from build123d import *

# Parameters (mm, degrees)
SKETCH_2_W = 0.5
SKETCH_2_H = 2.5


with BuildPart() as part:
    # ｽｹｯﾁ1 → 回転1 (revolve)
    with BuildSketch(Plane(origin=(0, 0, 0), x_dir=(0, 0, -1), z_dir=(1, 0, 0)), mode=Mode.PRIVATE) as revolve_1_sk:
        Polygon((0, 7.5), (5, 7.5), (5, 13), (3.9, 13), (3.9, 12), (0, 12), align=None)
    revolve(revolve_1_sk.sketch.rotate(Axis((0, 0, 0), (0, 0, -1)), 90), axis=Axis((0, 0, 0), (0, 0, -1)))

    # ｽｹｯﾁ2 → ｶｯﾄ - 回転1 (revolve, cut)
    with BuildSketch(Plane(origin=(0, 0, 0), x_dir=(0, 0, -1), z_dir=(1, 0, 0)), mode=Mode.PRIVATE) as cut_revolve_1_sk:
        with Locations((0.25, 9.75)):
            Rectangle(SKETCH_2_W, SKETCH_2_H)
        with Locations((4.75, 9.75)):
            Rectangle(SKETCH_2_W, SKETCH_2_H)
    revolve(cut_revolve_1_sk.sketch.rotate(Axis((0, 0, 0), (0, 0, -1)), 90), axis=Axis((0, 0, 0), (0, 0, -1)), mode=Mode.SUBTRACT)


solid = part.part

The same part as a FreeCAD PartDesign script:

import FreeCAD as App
import Part
import Sketcher
Q = App.Units.Quantity

doc = App.newDocument("Part")
params = doc.addObject("Spreadsheet::Sheet", "Params")
for row, (alias, value) in enumerate([
    ("sketch1_width", "1 mm"),
    ("sketch1_height", "5 mm"),
    ("sketch1_width2", "5.5 mm"),
    ("sketch1_height2", "1.1 mm"),
    ("revolution_angle", "360 deg"),
    ("sketch2_width", "2.5 mm"),
    ("sketch2_height", "0.5 mm"),
    ("groove_angle", "360 deg"),
], start=1):
    params.set(f"A{row}", alias)
    params.set(f"B{row}", "=" + value)
    params.setAlias(f"B{row}", alias)

body = doc.addObject("PartDesign::Body", "Body")

sketch1 = body.newObject("Sketcher::SketchObject", "Sketch")
sketch1.AttachmentSupport = (doc.getObject("YZ_Plane"), [""])
sketch1.MapMode = "FlatFace"
sketch1.addGeometry([
    Part.LineSegment(App.Vector(7.5, 0, 0), App.Vector(7.5, -5, 0)),
    Part.LineSegment(App.Vector(7.5, -5, 0), App.Vector(13, -5, 0)),
    Part.LineSegment(App.Vector(13, -5, 0), App.Vector(13, -3.9, 0)),
    Part.LineSegment(App.Vector(13, -3.9, 0), App.Vector(12, -3.9, 0)),
    Part.LineSegment(App.Vector(12, -3.9, 0), App.Vector(12, 0, 0)),
    Part.LineSegment(App.Vector(12, 0, 0), App.Vector(7.5, 0, 0)),
], False)
sketch1.addConstraint([
    Sketcher.Constraint("Coincident", 0, 2, 1, 1),
    Sketcher.Constraint("Coincident", 1, 2, 2, 1),
    Sketcher.Constraint("Coincident", 2, 2, 3, 1),
    Sketcher.Constraint("Coincident", 3, 2, 4, 1),
    Sketcher.Constraint("Coincident", 4, 2, 5, 1),
    Sketcher.Constraint("Coincident", 5, 2, 0, 1),
    Sketcher.Constraint("Vertical", 0),
    Sketcher.Constraint("Horizontal", 1),
    Sketcher.Constraint("Vertical", 2),
    Sketcher.Constraint("Horizontal", 3),
    Sketcher.Constraint("Vertical", 4),
    Sketcher.Constraint("Horizontal", 5),
    Sketcher.Constraint("PointOnObject", 4, 2, -1),
    Sketcher.Constraint("DistanceX", 3, 2, 3, 1, Q("1 mm")),
    Sketcher.Constraint("DistanceY", 0, 2, 0, 1, Q("5 mm")),
    Sketcher.Constraint("DistanceX", 1, 1, 1, 2, Q("5.5 mm")),
    Sketcher.Constraint("DistanceY", 2, 1, 2, 2, Q("1.1 mm")),
    Sketcher.Constraint("DistanceX", -1, 1, 1, 2, Q("13 mm")),
])
sketch1.setExpression("Constraints[13]", "Params.sketch1_width")
sketch1.setExpression("Constraints[14]", "Params.sketch1_height")
sketch1.setExpression("Constraints[15]", "Params.sketch1_width2")
sketch1.setExpression("Constraints[16]", "Params.sketch1_height2")
revolution = body.newObject("PartDesign::Revolution", "Revolution")
revolution.Profile = sketch1
revolution.ReferenceAxis = (sketch1, ["V_Axis"])
revolution.setExpression("Angle", "Params.revolution_angle")

sketch2 = body.newObject("Sketcher::SketchObject", "Sketch001")
sketch2.AttachmentSupport = (doc.getObject("YZ_Plane"), [""])
sketch2.MapMode = "FlatFace"
sketch2.addGeometry([
    Part.LineSegment(App.Vector(11, 0, 0), App.Vector(8.5, 0, 0)),
    Part.LineSegment(App.Vector(8.5, 0, 0), App.Vector(8.5, -0.5, 0)),
    Part.LineSegment(App.Vector(8.5, -0.5, 0), App.Vector(11, -0.5, 0)),
    Part.LineSegment(App.Vector(11, -0.5, 0), App.Vector(11, 0, 0)),
    Part.LineSegment(App.Vector(11, -4.5, 0), App.Vector(8.5, -4.5, 0)),
    Part.LineSegment(App.Vector(8.5, -4.5, 0), App.Vector(8.5, -5, 0)),
    Part.LineSegment(App.Vector(8.5, -5, 0), App.Vector(11, -5, 0)),
    Part.LineSegment(App.Vector(11, -5, 0), App.Vector(11, -4.5, 0)),
], False)
sketch2.addConstraint([
    Sketcher.Constraint("Coincident", 0, 2, 1, 1),
    Sketcher.Constraint("Coincident", 1, 2, 2, 1),
    Sketcher.Constraint("Coincident", 2, 2, 3, 1),
    Sketcher.Constraint("Coincident", 3, 2, 0, 1),
    Sketcher.Constraint("Coincident", 4, 2, 5, 1),
    Sketcher.Constraint("Coincident", 5, 2, 6, 1),
    Sketcher.Constraint("Coincident", 6, 2, 7, 1),
    Sketcher.Constraint("Coincident", 7, 2, 4, 1),
    Sketcher.Constraint("Horizontal", 0),
    Sketcher.Constraint("Vertical", 1),
    Sketcher.Constraint("Horizontal", 2),
    Sketcher.Constraint("Vertical", 3),
    Sketcher.Constraint("Horizontal", 4),
    Sketcher.Constraint("Vertical", 5),
    Sketcher.Constraint("Horizontal", 6),
    Sketcher.Constraint("Vertical", 7),
    Sketcher.Constraint("PointOnObject", 0, 2, -1),
    Sketcher.Constraint("Vertical", 1, 2, 4, 2),
    Sketcher.Constraint("Vertical", 3, 2, 6, 2),
    Sketcher.Constraint("Equal", 3, 5),
    Sketcher.Constraint("DistanceX", 0, 2, 0, 1, Q("2.5 mm")),
    Sketcher.Constraint("DistanceY", 1, 2, 1, 1, Q("0.5 mm")),
    Sketcher.Constraint("DistanceX", -1, 1, 2, 2, Q("11 mm")),
    Sketcher.Constraint("DistanceY", 5, 2, -1, 1, Q("5 mm")),
])
sketch2.setExpression("Constraints[20]", "Params.sketch2_width")
sketch2.setExpression("Constraints[21]", "Params.sketch2_height")
groove = body.newObject("PartDesign::Groove", "Groove")
groove.Profile = sketch2
groove.ReferenceAxis = (sketch2, ["V_Axis"])
groove.setExpression("Angle", "Params.groove_angle")

doc.recompute()
